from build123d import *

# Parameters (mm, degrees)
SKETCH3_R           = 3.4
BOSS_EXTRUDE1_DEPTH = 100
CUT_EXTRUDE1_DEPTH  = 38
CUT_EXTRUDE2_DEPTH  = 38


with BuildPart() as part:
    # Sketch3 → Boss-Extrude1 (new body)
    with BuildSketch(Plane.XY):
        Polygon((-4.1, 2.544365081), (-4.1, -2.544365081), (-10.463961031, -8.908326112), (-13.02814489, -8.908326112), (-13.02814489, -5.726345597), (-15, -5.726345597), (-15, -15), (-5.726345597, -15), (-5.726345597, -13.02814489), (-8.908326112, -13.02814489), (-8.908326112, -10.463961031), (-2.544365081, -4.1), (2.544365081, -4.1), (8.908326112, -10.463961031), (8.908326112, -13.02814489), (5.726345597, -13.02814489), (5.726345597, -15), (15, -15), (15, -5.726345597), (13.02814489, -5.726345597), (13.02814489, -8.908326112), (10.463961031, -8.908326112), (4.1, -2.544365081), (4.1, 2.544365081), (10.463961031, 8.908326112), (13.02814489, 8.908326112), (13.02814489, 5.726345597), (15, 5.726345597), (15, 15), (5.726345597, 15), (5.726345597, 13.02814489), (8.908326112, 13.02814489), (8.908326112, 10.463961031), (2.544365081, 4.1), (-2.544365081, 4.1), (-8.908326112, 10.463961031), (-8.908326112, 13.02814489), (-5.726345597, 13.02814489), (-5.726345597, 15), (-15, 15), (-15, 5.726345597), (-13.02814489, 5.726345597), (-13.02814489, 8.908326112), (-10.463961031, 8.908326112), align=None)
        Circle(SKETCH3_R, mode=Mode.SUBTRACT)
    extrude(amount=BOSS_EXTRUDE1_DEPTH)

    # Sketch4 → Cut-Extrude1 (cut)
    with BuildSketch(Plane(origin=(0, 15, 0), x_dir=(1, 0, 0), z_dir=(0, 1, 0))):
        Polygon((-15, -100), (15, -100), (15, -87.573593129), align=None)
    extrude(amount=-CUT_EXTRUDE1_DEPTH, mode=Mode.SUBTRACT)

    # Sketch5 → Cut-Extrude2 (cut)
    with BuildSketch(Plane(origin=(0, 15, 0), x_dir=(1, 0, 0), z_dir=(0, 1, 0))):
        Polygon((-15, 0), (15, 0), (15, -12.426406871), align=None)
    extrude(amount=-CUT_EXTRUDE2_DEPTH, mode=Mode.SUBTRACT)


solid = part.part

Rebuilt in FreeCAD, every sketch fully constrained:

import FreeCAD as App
import Part
import Sketcher
Q = App.Units.Quantity

doc = App.newDocument("Part")
body = doc.addObject("PartDesign::Body", "Body")

sketch1 = body.newObject("Sketcher::SketchObject", "Sketch")
sketch1.AttachmentSupport = (doc.getObject("XY_Plane"), [""])
sketch1.MapMode = "FlatFace"
sketch1.addGeometry([
    Part.LineSegment(App.Vector(-4.1, 2.5, 0), App.Vector(-4.1, -2.5, 0)),
    Part.LineSegment(App.Vector(-4.1, -2.5, 0), App.Vector(-10.5, -8.9, 0)),
    Part.LineSegment(App.Vector(-10.5, -8.9, 0), App.Vector(-13, -8.9, 0)),
    Part.LineSegment(App.Vector(-13, -8.9, 0), App.Vector(-13, -5.7, 0)),
    Part.LineSegment(App.Vector(-13, -5.7, 0), App.Vector(-15, -5.7, 0)),
    Part.LineSegment(App.Vector(-15, -5.7, 0), App.Vector(-15, -15, 0)),
    Part.LineSegment(App.Vector(-15, -15, 0), App.Vector(-5.7, -15, 0)),
    Part.LineSegment(App.Vector(-5.7, -15, 0), App.Vector(-5.7, -13, 0)),
    Part.LineSegment(App.Vector(-5.7, -13, 0), App.Vector(-8.9, -13, 0)),
    Part.LineSegment(App.Vector(-8.9, -13, 0), App.Vector(-8.9, -10.5, 0)),
    Part.LineSegment(App.Vector(-8.9, -10.5, 0), App.Vector(-2.5, -4.1, 0)),
    Part.LineSegment(App.Vector(-2.5, -4.1, 0), App.Vector(2.5, -4.1, 0)),
    Part.LineSegment(App.Vector(2.5, -4.1, 0), App.Vector(8.9, -10.5, 0)),
    Part.LineSegment(App.Vector(8.9, -10.5, 0), App.Vector(8.9, -13, 0)),
    Part.LineSegment(App.Vector(8.9, -13, 0), App.Vector(5.7, -13, 0)),
    Part.LineSegment(App.Vector(5.7, -13, 0), App.Vector(5.7, -15, 0)),
    Part.LineSegment(App.Vector(5.7, -15, 0), App.Vector(15, -15, 0)),
    Part.LineSegment(App.Vector(15, -15, 0), App.Vector(15, -5.7, 0)),
    Part.LineSegment(App.Vector(15, -5.7, 0), App.Vector(13, -5.7, 0)),
    Part.LineSegment(App.Vector(13, -5.7, 0), App.Vector(13, -8.9, 0)),
    Part.LineSegment(App.Vector(13, -8.9, 0), App.Vector(10.5, -8.9, 0)),
    Part.LineSegment(App.Vector(10.5, -8.9, 0), App.Vector(4.1, -2.5, 0)),
    Part.LineSegment(App.Vector(4.1, -2.5, 0), App.Vector(4.1, 2.5, 0)),
    Part.LineSegment(App.Vector(4.1, 2.5, 0), App.Vector(10.5, 8.9, 0)),
    Part.LineSegment(App.Vector(10.5, 8.9, 0), App.Vector(13, 8.9, 0)),
    Part.LineSegment(App.Vector(13, 8.9, 0), App.Vector(13, 5.7, 0)),
    Part.LineSegment(App.Vector(13, 5.7, 0), App.Vector(15, 5.7, 0)),
    Part.LineSegment(App.Vector(15, 5.7, 0), App.Vector(15, 15, 0)),
    Part.LineSegment(App.Vector(15, 15, 0), App.Vector(5.7, 15, 0)),
    Part.LineSegment(App.Vector(5.7, 15, 0), App.Vector(5.7, 13, 0)),
    Part.LineSegment(App.Vector(5.7, 13, 0), App.Vector(8.9, 13, 0)),
    Part.LineSegment(App.Vector(8.9, 13, 0), App.Vector(8.9, 10.5, 0)),
    Part.LineSegment(App.Vector(8.9, 10.5, 0), App.Vector(2.5, 4.1, 0)),
    Part.LineSegment(App.Vector(2.5, 4.1, 0), App.Vector(-2.5, 4.1, 0)),
    Part.LineSegment(App.Vector(-2.5, 4.1, 0), App.Vector(-8.9, 10.5, 0)),
    Part.LineSegment(App.Vector(-8.9, 10.5, 0), App.Vector(-8.9, 13, 0)),
    Part.LineSegment(App.Vector(-8.9, 13, 0), App.Vector(-5.7, 13, 0)),
    Part.LineSegment(App.Vector(-5.7, 13, 0), App.Vector(-5.7, 15, 0)),
    Part.LineSegment(App.Vector(-5.7, 15, 0), App.Vector(-15, 15, 0)),
    Part.LineSegment(App.Vector(-15, 15, 0), App.Vector(-15, 5.7, 0)),
    Part.LineSegment(App.Vector(-15, 5.7, 0), App.Vector(-13, 5.7, 0)),
    Part.LineSegment(App.Vector(-13, 5.7, 0), App.Vector(-13, 8.9, 0)),
    Part.LineSegment(App.Vector(-13, 8.9, 0), App.Vector(-10.5, 8.9, 0)),
    Part.LineSegment(App.Vector(-10.5, 8.9, 0), App.Vector(-4.1, 2.5, 0)),
    Part.Circle(App.Vector(0, 0, 0), App.Vector(0, 0, 1), 3.4),
], False)
sketch1.addConstraint([
    Sketcher.Constraint("Coincident", 0, 2, 1, 1),
    Sketcher.Constraint("Coincident", 1, 2, 2, 1),
    Sketcher.Constraint("Coincident", 2, 2, 3, 1),
    Sketcher.Constraint("Coincident", 3, 2, 4, 1),
    Sketcher.Constraint("Coincident", 4, 2, 5, 1),
    Sketcher.Constraint("Coincident", 5, 2, 6, 1),
    Sketcher.Constraint("Coincident", 6, 2, 7, 1),
    Sketcher.Constraint("Coincident", 7, 2, 8, 1),
    Sketcher.Constraint("Coincident", 8, 2, 9, 1),
    Sketcher.Constraint("Coincident", 9, 2, 10, 1),
    Sketcher.Constraint("Coincident", 10, 2, 11, 1),
    Sketcher.Constraint("Coincident", 11, 2, 12, 1),
    Sketcher.Constraint("Coincident", 12, 2, 13, 1),
    Sketcher.Constraint("Coincident", 13, 2, 14, 1),
    Sketcher.Constraint("Coincident", 14, 2, 15, 1),
    Sketcher.Constraint("Coincident", 15, 2, 16, 1),
    Sketcher.Constraint("Coincident", 16, 2, 17, 1),
    Sketcher.Constraint("Coincident", 17, 2, 18, 1),
    Sketcher.Constraint("Coincident", 18, 2, 19, 1),
    Sketcher.Constraint("Coincident", 19, 2, 20, 1),
    Sketcher.Constraint("Coincident", 20, 2, 21, 1),
    Sketcher.Constraint("Coincident", 21, 2, 22, 1),
    Sketcher.Constraint("Coincident", 22, 2, 23, 1),
    Sketcher.Constraint("Coincident", 23, 2, 24, 1),
    Sketcher.Constraint("Coincident", 24, 2, 25, 1),
    Sketcher.Constraint("Coincident", 25, 2, 26, 1),
    Sketcher.Constraint("Coincident", 26, 2, 27, 1),
    Sketcher.Constraint("Coincident", 27, 2, 28, 1),
    Sketcher.Constraint("Coincident", 28, 2, 29, 1),
    Sketcher.Constraint("Coincident", 29, 2, 30, 1),
    Sketcher.Constraint("Coincident", 30, 2, 31, 1),
    Sketcher.Constraint("Coincident", 31, 2, 32, 1),
    Sketcher.Constraint("Coincident", 32, 2, 33, 1),
    Sketcher.Constraint("Coincident", 33, 2, 34, 1),
    Sketcher.Constraint("Coincident", 34, 2, 35, 1),
    Sketcher.Constraint("Coincident", 35, 2, 36, 1),
    Sketcher.Constraint("Coincident", 36, 2, 37, 1),
    Sketcher.Constraint("Coincident", 37, 2, 38, 1),
    Sketcher.Constraint("Coincident", 38, 2, 39, 1),
    Sketcher.Constraint("Coincident", 39, 2, 40, 1),
    Sketcher.Constraint("Coincident", 40, 2, 41, 1),
    Sketcher.Constraint("Coincident", 41, 2, 42, 1),
    Sketcher.Constraint("Coincident", 42, 2, 43, 1),
    Sketcher.Constraint("Coincident", 43, 2, 0, 1),
    Sketcher.Constraint("Vertical", 0),
    Sketcher.Constraint("Horizontal", 2),
    Sketcher.Constraint("Vertical", 3),
    Sketcher.Constraint("Horizontal", 4),
    Sketcher.Constraint("Vertical", 5),
    Sketcher.Constraint("Horizontal", 6),
    Sketcher.Constraint("Vertical", 7),
    Sketcher.Constraint("Horizontal", 8),
    Sketcher.Constraint("Vertical", 9),
    Sketcher.Constraint("Horizontal", 11),
    Sketcher.Constraint("Vertical", 13),
    Sketcher.Constraint("Horizontal", 14),
    Sketcher.Constraint("Vertical", 15),
    Sketcher.Constraint("Horizontal", 16),
    Sketcher.Constraint("Vertical", 17),
    Sketcher.Constraint("Horizontal", 18),
    Sketcher.Constraint("Vertical", 19),
    Sketcher.Constraint("Horizontal", 20),
    Sketcher.Constraint("Vertical", 22),
    Sketcher.Constraint("Horizontal", 24),
    Sketcher.Constraint("Vertical", 25),
    Sketcher.Constraint("Horizontal", 26),
    Sketcher.Constraint("Vertical", 27),
    Sketcher.Constraint("Horizontal", 28),
    Sketcher.Constraint("Vertical", 29),
    Sketcher.Constraint("Horizontal", 30),
    Sketcher.Constraint("Vertical", 31),
    Sketcher.Constraint("Horizontal", 33),
    Sketcher.Constraint("Vertical", 35),
    Sketcher.Constraint("Horizontal", 36),
    Sketcher.Constraint("Vertical", 37),
    Sketcher.Constraint("Horizontal", 38),
    Sketcher.Constraint("Vertical", 39),
    Sketcher.Constraint("Horizontal", 40),
    Sketcher.Constraint("Vertical", 41),
    Sketcher.Constraint("Horizontal", 42),
    Sketcher.Constraint("Coincident", 44, 3, -1, 1),
    Sketcher.Constraint("Symmetric", 0, 2, 22, 2, -1, 1),
    Sketcher.Constraint("Symmetric", 1, 2, 23, 2, -1, 1),
    Sketcher.Constraint("Symmetric", 3, 2, 25, 2, -1, 1),
    Sketcher.Constraint("Symmetric", 5, 2, 27, 2, -1, 1),
    Sketcher.Constraint("Symmetric", 7, 2, 29, 2, -1, 1),
    Sketcher.Constraint("Symmetric", 9, 2, 31, 2, -1, 1),
    Sketcher.Constraint("Symmetric", 10, 2, 32, 2, -1, 1),
    Sketcher.Constraint("Symmetric", 12, 2, 34, 2, -1, 1),
    Sketcher.Constraint("Symmetric", 14, 2, 36, 2, -1, 1),
    Sketcher.Constraint("Symmetric", 16, 2, 38, 2, -1, 1),
    Sketcher.Constraint("Symmetric", 18, 2, 40, 2, -1, 1),
    Sketcher.Constraint("Symmetric", 20, 2, 42, 2, -1, 1),
    Sketcher.Constraint("Symmetric", 9, 2, 12, 2, -2),
    Sketcher.Constraint("Symmetric", 7, 2, 14, 2, -2),
    Sketcher.Constraint("Symmetric", 5, 2, 16, 2, -2),
    Sketcher.Constraint("Symmetric", 3, 2, 18, 2, -2),
    Sketcher.Constraint("Symmetric", 1, 2, 20, 2, -2),
    Sketcher.Constraint("Parallel", 1, 10),
    Sketcher.Constraint("Perpendicular", 10, 12),
    Sketcher.Constraint("Parallel", 12, 21),
    Sketcher.Constraint("Perpendicular", 32, 34),
    Sketcher.Constraint("Parallel", 34, 43),
    Sketcher.Constraint("Horizontal", 0, 2, 21, 2),
    Sketcher.Constraint("Equal", 33, 0),
    Sketcher.Constraint("Equal", 36, 3),
    Sketcher.Constraint("Equal", 38, 5),
    Sketcher.Constraint("Equal", 40, 7),
    Sketcher.Constraint("Equal", 42, 9),
    Sketcher.Constraint("Equal", 1, 10),
    Sketcher.Constraint("Diameter", 44, 6.8),
    Sketcher.Constraint("Distance", 1, 9.0),
    Sketcher.Constraint("DistanceX", 4, 2, -1, 1, 15.0),
    Sketcher.Constraint("DistanceX", 0, 2, -1, 1, 4.1),
    Sketcher.Constraint("DistanceX", 8, 2, 8, 1, 3.181981),
    Sketcher.Constraint("DistanceX", 11, 1, 11, 2, 5.08873),
    Sketcher.Constraint("DistanceX", 2, 2, 6, 2, 7.301799),
])
pad1 = body.newObject("PartDesign::Pad", "Pad")
pad1.Profile = sketch1
pad1.Length = 100

sketch2 = body.newObject("Sketcher::SketchObject", "Sketch001")
sketch2.AttachmentSupport = (doc.getObject("XZ_Plane"), [""])
sketch2.MapMode = "FlatFace"
sketch2.AttachmentOffset = App.Placement(App.Vector(0, 0, -15), App.Rotation())
sketch2.addGeometry([
    Part.LineSegment(App.Vector(-15, 100, 0), App.Vector(15, 100, 0)),
    Part.LineSegment(App.Vector(15, 100, 0), App.Vector(15, 88, 0)),
    Part.LineSegment(App.Vector(15, 88, 0), App.Vector(-15, 100, 0)),
], False)
sketch2.addConstraint([
    Sketcher.Constraint("Coincident", 0, 2, 1, 1),
    Sketcher.Constraint("Coincident", 1, 2, 2, 1),
    Sketcher.Constraint("Coincident", 2, 2, 0, 1),
    Sketcher.Constraint("Horizontal", 0),
    Sketcher.Constraint("Vertical", 1),
    Sketcher.Constraint("DistanceX", 0, 1, 0, 2, 30.0),
    Sketcher.Constraint("DistanceX", -1, 1, 0, 2, 15.0),
    Sketcher.Constraint("DistanceY", -1, 1, 0, 2, 100.0),
    Sketcher.Constraint("Angle", 2, Q("157.5 deg")),
])
pocket1 = body.newObject("PartDesign::Pocket", "Pocket")
pocket1.Profile = sketch2
pocket1.Length = 38
pocket1.Reversed = True

sketch3 = body.newObject("Sketcher::SketchObject", "Sketch002")
sketch3.AttachmentSupport = (doc.getObject("XZ_Plane"), [""])
sketch3.MapMode = "FlatFace"
sketch3.AttachmentOffset = App.Placement(App.Vector(0, 0, -15), App.Rotation())
sketch3.addGeometry([
    Part.LineSegment(App.Vector(15, 0, 0), App.Vector(-15, 0, 0)),
    Part.LineSegment(App.Vector(-15, 0, 0), App.Vector(15, 12, 0)),
    Part.LineSegment(App.Vector(15, 12, 0), App.Vector(15, 0, 0)),
], False)
sketch3.addConstraint([
    Sketcher.Constraint("Coincident", 0, 2, 1, 1),
    Sketcher.Constraint("Coincident", 1, 2, 2, 1),
    Sketcher.Constraint("Coincident", 2, 2, 0, 1),
    Sketcher.Constraint("Horizontal", 0),
    Sketcher.Constraint("Vertical", 2),
    Sketcher.Constraint("Symmetric", 0, 2, 2, 2, -1, 1),
    Sketcher.Constraint("DistanceX", 0, 2, 0, 1, 30.0),
    Sketcher.Constraint("Angle", 1, Q("22.5 deg")),
])
pocket2 = body.newObject("PartDesign::Pocket", "Pocket001")
pocket2.Profile = sketch3
pocket2.Length = 38
pocket2.Reversed = True

doc.recompute()
